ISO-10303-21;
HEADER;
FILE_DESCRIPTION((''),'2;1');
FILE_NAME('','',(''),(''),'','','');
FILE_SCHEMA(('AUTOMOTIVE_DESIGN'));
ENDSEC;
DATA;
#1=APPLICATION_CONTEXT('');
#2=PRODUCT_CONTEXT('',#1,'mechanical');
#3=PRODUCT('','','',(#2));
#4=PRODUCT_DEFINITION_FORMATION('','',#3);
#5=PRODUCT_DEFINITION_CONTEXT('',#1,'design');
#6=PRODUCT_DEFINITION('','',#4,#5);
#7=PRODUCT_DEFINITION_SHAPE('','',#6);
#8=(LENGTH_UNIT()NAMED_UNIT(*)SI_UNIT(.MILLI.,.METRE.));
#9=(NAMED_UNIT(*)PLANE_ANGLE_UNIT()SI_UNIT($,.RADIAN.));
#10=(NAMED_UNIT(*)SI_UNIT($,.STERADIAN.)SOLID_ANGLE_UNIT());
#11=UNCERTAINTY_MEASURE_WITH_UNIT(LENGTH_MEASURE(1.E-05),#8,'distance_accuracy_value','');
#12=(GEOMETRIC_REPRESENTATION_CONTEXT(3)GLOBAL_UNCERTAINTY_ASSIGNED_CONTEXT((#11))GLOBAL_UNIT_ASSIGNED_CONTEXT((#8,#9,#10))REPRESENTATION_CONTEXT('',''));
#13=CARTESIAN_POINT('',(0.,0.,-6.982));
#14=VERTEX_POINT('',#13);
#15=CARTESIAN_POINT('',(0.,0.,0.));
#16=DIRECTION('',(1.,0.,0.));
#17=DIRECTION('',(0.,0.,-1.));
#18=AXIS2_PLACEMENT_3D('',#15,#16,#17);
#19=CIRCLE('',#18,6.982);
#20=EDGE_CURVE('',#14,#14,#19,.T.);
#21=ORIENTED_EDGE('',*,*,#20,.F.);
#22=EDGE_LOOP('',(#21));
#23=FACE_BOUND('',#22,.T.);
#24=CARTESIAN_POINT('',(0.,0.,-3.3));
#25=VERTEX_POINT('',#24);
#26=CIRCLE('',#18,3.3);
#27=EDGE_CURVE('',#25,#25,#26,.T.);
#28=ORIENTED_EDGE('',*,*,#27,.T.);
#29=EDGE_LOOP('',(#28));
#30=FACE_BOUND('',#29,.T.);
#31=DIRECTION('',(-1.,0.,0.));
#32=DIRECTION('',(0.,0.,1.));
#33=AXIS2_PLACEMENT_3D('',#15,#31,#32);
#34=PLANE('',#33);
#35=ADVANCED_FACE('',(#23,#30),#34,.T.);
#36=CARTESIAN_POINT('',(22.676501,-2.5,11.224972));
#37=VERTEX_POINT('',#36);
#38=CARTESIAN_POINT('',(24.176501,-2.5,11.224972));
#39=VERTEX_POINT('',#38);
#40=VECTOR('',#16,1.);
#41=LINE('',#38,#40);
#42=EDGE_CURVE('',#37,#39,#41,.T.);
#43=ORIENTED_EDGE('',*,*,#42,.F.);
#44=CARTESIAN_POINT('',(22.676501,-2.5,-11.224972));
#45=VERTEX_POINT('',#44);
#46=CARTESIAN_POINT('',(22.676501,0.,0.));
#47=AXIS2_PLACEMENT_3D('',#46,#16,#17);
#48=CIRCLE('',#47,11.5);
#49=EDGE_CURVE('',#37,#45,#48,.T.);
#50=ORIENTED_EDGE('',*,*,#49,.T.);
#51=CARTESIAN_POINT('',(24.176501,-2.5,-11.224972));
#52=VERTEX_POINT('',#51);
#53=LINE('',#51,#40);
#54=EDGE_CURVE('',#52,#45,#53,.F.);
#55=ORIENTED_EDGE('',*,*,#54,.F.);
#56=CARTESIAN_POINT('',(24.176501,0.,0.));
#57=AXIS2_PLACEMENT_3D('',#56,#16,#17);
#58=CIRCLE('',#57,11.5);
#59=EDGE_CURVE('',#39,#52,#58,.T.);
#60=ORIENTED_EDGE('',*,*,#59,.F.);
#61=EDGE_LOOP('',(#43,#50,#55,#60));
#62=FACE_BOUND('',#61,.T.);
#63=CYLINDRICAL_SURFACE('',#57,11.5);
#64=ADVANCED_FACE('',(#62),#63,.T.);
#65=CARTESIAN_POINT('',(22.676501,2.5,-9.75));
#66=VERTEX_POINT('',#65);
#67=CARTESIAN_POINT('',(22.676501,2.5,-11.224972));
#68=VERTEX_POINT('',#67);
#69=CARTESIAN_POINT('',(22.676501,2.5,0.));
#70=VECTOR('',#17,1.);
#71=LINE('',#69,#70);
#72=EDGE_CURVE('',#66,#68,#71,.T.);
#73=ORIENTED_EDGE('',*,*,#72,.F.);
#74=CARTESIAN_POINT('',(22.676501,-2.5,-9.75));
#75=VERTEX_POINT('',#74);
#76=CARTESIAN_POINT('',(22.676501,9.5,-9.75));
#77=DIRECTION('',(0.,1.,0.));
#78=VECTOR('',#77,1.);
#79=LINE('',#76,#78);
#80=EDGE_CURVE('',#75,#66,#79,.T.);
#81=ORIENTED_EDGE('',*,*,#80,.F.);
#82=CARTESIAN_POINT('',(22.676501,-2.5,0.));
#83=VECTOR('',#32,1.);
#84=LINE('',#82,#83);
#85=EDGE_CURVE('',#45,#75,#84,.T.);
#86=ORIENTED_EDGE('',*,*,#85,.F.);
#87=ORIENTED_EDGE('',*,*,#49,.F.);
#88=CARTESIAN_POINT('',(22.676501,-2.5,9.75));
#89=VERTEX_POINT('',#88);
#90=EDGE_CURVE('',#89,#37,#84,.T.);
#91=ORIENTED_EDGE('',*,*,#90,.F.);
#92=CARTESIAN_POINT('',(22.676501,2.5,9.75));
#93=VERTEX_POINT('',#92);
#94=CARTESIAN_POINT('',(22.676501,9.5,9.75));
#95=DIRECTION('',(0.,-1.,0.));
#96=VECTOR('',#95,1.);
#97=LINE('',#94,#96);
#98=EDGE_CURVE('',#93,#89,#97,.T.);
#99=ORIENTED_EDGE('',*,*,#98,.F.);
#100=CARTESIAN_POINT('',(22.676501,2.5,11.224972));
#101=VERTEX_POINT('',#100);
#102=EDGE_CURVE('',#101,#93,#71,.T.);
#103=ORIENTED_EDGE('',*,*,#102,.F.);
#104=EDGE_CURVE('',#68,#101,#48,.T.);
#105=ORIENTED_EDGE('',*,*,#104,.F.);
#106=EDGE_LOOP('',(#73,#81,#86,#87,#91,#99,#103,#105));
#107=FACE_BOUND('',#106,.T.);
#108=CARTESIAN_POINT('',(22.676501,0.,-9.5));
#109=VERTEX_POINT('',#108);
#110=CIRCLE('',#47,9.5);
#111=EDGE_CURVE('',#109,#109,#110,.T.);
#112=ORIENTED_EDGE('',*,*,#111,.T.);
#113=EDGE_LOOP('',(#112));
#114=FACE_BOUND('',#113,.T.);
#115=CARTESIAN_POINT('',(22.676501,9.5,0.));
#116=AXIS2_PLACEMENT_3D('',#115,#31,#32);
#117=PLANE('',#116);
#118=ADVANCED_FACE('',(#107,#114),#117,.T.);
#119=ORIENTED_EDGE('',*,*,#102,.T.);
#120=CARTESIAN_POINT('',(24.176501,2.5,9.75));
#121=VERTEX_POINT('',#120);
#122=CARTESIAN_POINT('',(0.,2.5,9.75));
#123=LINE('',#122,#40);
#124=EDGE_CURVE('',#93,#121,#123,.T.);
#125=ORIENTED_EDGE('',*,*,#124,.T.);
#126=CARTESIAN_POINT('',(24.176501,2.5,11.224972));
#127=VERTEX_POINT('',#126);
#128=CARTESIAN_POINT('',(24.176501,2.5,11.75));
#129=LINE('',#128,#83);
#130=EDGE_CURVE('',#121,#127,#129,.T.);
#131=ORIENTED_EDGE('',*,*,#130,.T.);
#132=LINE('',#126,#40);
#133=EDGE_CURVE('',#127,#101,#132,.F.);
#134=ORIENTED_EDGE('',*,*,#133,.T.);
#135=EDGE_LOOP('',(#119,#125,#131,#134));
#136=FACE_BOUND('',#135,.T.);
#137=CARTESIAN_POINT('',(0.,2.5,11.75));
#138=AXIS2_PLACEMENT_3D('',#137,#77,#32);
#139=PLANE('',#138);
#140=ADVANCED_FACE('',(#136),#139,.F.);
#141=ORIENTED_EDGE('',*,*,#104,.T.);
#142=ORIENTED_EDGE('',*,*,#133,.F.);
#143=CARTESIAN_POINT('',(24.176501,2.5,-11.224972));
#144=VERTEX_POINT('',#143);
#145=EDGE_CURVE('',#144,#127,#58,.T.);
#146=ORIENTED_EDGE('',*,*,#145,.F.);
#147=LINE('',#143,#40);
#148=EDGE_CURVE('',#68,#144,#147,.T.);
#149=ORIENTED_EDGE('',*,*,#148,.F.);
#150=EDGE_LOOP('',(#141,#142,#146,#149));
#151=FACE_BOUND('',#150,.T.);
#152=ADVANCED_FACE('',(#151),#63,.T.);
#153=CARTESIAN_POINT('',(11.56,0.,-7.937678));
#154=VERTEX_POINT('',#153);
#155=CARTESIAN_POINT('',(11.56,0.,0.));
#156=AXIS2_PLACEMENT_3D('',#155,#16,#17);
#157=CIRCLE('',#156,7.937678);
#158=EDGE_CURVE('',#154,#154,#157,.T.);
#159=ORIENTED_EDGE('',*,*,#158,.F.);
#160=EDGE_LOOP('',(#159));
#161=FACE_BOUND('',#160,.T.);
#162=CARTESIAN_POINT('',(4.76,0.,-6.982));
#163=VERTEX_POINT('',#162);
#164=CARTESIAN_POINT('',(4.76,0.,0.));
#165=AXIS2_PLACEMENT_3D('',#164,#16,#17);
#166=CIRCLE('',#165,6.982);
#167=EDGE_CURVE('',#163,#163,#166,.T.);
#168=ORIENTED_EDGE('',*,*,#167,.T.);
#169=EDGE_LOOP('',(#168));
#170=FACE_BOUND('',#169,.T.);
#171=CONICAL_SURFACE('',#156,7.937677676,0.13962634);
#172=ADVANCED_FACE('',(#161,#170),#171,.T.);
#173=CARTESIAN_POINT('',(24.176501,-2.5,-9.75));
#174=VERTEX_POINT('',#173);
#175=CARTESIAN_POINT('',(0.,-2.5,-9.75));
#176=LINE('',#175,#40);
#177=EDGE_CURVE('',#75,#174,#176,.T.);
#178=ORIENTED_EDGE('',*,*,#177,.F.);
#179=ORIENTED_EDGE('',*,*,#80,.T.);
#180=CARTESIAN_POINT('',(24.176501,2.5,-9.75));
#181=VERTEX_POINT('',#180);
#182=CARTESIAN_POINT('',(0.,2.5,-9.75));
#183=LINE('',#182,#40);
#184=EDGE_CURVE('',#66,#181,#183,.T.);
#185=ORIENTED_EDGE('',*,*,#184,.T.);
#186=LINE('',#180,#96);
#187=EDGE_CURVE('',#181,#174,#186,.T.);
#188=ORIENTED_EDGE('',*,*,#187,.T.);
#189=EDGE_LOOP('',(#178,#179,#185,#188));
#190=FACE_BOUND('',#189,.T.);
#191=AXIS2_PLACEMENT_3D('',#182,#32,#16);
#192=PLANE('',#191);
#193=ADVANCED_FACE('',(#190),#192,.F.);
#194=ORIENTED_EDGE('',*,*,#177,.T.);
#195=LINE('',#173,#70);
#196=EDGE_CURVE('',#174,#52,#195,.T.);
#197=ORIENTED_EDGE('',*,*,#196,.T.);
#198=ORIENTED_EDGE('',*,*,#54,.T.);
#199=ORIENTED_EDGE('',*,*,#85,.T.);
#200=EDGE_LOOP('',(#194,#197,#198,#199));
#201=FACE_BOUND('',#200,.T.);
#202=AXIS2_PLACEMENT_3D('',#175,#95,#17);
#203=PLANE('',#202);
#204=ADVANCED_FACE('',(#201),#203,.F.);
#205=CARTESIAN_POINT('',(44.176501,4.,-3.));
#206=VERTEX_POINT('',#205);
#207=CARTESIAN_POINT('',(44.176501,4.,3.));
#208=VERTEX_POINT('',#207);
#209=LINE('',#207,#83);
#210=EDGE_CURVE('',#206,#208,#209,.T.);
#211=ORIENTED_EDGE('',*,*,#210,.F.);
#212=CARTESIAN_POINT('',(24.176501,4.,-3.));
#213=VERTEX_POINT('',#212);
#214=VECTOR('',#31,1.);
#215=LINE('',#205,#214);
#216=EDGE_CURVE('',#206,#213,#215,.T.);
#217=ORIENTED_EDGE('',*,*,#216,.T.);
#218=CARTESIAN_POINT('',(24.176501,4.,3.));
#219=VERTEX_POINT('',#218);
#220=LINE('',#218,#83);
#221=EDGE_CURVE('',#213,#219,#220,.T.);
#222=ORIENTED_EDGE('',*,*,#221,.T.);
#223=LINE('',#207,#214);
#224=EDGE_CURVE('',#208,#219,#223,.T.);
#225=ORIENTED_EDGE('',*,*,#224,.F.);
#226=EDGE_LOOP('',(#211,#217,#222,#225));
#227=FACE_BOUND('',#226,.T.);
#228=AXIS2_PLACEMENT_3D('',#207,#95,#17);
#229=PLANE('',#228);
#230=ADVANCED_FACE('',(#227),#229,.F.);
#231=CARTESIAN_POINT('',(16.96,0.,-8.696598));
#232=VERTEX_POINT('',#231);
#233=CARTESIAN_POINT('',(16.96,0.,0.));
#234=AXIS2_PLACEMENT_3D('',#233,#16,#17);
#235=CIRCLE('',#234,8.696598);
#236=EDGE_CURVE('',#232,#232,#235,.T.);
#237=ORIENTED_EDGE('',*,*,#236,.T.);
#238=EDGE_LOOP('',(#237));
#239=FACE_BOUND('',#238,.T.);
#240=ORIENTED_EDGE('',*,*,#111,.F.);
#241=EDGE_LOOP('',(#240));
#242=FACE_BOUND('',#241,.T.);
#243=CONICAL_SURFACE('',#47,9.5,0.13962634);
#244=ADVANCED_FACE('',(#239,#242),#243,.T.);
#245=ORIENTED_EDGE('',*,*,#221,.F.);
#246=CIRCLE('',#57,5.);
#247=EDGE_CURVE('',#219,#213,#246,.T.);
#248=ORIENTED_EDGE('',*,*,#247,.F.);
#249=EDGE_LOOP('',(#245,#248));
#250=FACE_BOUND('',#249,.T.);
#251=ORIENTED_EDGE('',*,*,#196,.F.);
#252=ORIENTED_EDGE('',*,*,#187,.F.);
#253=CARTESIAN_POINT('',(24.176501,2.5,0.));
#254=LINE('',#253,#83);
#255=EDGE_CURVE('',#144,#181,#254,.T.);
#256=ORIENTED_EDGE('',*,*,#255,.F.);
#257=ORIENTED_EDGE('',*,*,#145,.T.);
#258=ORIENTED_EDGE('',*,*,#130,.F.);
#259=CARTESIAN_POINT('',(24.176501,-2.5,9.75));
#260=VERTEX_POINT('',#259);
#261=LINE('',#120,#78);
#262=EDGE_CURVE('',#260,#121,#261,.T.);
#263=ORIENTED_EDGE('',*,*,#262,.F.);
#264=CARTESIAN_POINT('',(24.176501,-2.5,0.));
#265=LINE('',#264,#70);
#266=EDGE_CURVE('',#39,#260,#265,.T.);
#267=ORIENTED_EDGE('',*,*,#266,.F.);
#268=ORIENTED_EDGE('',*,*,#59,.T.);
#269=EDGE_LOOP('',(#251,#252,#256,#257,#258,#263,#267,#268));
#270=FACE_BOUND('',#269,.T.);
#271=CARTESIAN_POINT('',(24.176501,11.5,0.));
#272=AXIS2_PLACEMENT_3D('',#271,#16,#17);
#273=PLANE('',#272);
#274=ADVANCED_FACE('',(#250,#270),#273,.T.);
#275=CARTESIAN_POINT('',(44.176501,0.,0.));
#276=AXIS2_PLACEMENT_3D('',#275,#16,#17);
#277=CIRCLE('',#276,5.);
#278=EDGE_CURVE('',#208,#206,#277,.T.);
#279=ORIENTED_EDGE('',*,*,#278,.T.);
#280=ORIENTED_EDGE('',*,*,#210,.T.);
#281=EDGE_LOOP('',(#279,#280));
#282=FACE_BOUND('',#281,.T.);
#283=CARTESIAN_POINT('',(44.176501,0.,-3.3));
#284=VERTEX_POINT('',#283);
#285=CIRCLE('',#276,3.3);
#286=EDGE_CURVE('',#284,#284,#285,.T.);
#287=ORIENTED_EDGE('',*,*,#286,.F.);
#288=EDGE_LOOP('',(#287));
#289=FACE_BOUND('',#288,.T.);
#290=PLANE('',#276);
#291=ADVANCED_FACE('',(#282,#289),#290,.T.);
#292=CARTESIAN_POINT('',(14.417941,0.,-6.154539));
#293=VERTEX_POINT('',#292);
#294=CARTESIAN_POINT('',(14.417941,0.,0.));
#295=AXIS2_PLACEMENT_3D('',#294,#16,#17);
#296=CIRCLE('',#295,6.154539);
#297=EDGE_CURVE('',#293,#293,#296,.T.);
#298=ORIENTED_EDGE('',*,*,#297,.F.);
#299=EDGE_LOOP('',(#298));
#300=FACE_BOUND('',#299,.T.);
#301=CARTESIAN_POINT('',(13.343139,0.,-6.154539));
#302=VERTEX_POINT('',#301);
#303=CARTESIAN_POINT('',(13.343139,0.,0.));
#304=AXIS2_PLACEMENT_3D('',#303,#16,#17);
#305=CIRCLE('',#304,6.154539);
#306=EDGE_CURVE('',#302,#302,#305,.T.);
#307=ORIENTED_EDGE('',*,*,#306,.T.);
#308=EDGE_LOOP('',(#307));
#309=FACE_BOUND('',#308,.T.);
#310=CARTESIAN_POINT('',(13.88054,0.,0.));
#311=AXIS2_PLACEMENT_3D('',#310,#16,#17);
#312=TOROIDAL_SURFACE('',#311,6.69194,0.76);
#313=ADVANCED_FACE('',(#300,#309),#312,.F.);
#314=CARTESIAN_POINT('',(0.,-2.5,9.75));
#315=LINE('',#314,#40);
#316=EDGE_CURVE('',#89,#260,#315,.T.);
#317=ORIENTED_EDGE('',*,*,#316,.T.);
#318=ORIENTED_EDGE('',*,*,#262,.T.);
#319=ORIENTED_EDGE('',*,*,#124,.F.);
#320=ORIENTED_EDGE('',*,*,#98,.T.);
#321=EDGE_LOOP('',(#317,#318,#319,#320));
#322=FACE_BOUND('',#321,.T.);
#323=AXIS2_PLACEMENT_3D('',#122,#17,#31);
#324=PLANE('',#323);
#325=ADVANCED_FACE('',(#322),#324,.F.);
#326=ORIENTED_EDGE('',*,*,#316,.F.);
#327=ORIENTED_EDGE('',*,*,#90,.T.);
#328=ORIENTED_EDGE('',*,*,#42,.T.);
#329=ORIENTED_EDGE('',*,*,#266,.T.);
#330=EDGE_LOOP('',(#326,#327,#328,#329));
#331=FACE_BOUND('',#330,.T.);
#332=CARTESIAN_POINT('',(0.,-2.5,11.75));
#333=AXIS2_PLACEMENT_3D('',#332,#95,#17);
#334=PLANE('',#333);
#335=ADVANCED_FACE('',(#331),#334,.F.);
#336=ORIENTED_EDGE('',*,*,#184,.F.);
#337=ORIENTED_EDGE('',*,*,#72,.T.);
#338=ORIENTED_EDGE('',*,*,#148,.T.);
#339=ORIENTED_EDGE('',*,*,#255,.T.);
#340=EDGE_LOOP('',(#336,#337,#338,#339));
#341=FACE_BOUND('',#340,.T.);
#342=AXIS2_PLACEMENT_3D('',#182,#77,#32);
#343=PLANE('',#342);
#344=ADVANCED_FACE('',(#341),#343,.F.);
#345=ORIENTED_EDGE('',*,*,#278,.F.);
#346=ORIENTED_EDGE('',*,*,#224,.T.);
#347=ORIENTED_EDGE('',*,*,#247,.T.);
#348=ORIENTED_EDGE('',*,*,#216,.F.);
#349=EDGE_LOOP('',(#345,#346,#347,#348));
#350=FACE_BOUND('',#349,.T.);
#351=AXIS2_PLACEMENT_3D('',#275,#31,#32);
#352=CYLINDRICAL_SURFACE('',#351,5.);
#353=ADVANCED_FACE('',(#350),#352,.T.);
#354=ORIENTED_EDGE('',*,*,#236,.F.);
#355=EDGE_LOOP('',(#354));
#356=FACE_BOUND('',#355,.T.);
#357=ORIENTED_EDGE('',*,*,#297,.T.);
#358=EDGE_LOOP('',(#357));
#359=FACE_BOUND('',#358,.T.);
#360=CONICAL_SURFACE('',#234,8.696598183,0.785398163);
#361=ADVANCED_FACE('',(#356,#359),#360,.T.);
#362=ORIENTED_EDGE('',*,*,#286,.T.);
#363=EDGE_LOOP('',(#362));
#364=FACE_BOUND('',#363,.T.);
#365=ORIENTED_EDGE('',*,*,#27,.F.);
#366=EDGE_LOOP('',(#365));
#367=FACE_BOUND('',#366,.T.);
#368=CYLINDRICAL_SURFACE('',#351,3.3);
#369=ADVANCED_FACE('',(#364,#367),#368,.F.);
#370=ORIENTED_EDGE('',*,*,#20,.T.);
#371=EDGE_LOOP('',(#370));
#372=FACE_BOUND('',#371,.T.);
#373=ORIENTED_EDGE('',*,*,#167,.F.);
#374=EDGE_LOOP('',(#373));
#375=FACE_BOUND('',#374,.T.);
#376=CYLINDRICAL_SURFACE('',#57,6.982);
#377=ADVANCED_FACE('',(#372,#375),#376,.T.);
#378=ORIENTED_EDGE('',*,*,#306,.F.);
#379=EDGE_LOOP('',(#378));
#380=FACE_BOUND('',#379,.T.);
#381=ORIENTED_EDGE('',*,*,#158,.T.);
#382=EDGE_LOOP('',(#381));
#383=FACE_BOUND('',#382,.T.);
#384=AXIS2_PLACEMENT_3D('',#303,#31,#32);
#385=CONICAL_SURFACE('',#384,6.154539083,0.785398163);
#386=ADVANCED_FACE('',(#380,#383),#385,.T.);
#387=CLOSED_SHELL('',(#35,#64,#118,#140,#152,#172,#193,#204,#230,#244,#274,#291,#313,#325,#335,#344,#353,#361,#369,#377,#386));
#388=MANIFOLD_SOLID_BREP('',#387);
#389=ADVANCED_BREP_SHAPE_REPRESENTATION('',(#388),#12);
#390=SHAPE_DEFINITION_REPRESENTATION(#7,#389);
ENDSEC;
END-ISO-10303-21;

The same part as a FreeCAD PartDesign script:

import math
import FreeCAD as App
import Part
import Sketcher

V = App.Vector
Q = App.Units.Quantity


def add_polygon(sketch, points):
    """Adds a closed chain of lines whose ends are joined by coincident constraints."""
    first, n = sketch.GeometryCount, len(points)
    for a, b in zip(points, points[1:] + points[:1]):
        sketch.addGeometry(Part.LineSegment(App.Vector(*a, 0), App.Vector(*b, 0)), False)
    for i in range(n):
        sketch.addConstraint(Sketcher.Constraint("Coincident", first + i, 2, first + (i + 1) % n, 1))

doc = App.newDocument("Part")
body = doc.addObject("PartDesign::Body", "Body")

# Sketch on XY plane
sketch1 = body.newObject("Sketcher::SketchObject", "Sketch")
sketch1.AttachmentSupport = (doc.getObject("XY_Plane"), [""])
sketch1.MapMode = "FlatFace"
sketch1.addGeometry(Part.LineSegment(V(0, 7, 0), V(0, 0, 0)), False)
sketch1.addGeometry(Part.LineSegment(V(0, 0, 0), V(24.2, 0, 0)), False)
sketch1.addGeometry(Part.LineSegment(V(24.2, 0, 0), V(24.2, 11.5, 0)), False)
sketch1.addGeometry(Part.LineSegment(V(24.2, 11.5, 0), V(22.7, 11.5, 0)), False)
sketch1.addGeometry(Part.LineSegment(V(22.7, 11.5, 0), V(22.7, 9.5, 0)), False)
sketch1.addGeometry(Part.LineSegment(V(22.7, 9.5, 0), V(17, 8.7, 0)), False)
sketch1.addGeometry(Part.LineSegment(V(17, 8.7, 0), V(14.4, 6.2, 0)), False)
sketch1.addGeometry(Part.ArcOfCircle(Part.Circle(V(13.9, 6.7, 0), V(0, 0, 1), 0.8), math.radians(-135), math.radians(-45)), False)
sketch1.addGeometry(Part.LineSegment(V(13.3, 6.2, 0), V(11.6, 7.9, 0)), False)
sketch1.addGeometry(Part.LineSegment(V(11.6, 7.9, 0), V(4.8, 7, 0)), False)
sketch1.addGeometry(Part.LineSegment(V(4.8, 7, 0), V(0, 7, 0)), False)
sketch1.addConstraint(Sketcher.Constraint("Coincident", 0, 2, 1, 1))
sketch1.addConstraint(Sketcher.Constraint("Coincident", 1, 2, 2, 1))
sketch1.addConstraint(Sketcher.Constraint("Coincident", 2, 2, 3, 1))
sketch1.addConstraint(Sketcher.Constraint("Coincident", 3, 2, 4, 1))
sketch1.addConstraint(Sketcher.Constraint("Coincident", 4, 2, 5, 1))
sketch1.addConstraint(Sketcher.Constraint("Coincident", 5, 2, 6, 1))
sketch1.addConstraint(Sketcher.Constraint("Tangent", 6, 2, 7, 2))
sketch1.addConstraint(Sketcher.Constraint("Tangent", 7, 1, 8, 1))
sketch1.addConstraint(Sketcher.Constraint("Coincident", 8, 2, 9, 1))
sketch1.addConstraint(Sketcher.Constraint("Coincident", 9, 2, 10, 1))
sketch1.addConstraint(Sketcher.Constraint("Coincident", 10, 2, 0, 1))
sketch1.addConstraint(Sketcher.Constraint("Vertical", 0))
sketch1.addConstraint(Sketcher.Constraint("Horizontal", 1))
sketch1.addConstraint(Sketcher.Constraint("Vertical", 2))
sketch1.addConstraint(Sketcher.Constraint("Horizontal", 3))
sketch1.addConstraint(Sketcher.Constraint("Vertical", 4))
sketch1.addConstraint(Sketcher.Constraint("Horizontal", 10))
sketch1.addConstraint(Sketcher.Constraint("Coincident", 0, 2, -1, 1))
sketch1.addConstraint(Sketcher.Constraint("Perpendicular", 6, 8))
sketch1.addConstraint(Sketcher.Constraint("Parallel", 5, 9))
sketch1.addConstraint(Sketcher.Constraint("Horizontal", 6, 2, 7, 1))
sketch1.addConstraint(Sketcher.Constraint("DistanceY", 4, 2, 4, 1, 2.0))
sketch1.addConstraint(Sketcher.Constraint("Angle", 5, Q("-172 deg")))
sketch1.addConstraint(Sketcher.Constraint("Radius", 7, 0.76))
sketch1.addConstraint(Sketcher.Constraint("DistanceX", 3, 2, 3, 1, 1.5))
sketch1.addConstraint(Sketcher.Constraint("DistanceY", 2, 1, 2, 2, 11.5))
sketch1.addConstraint(Sketcher.Constraint("DistanceX", 10, 2, 10, 1, 4.76))
sketch1.addConstraint(Sketcher.Constraint("DistanceX", 8, 2, 5, 2, 5.4))
sketch1.addConstraint(Sketcher.Constraint("DistanceX", 9, 2, 8, 2, 6.8))
sketch1.addConstraint(Sketcher.Constraint("DistanceY", 0, 2, 0, 1, 6.982))
sketch1.addConstraint(Sketcher.Constraint("DistanceX", 1, 1, 1, 2, 24.176501))
revolution = body.newObject("PartDesign::Revolution", "Revolution")
revolution.Profile = sketch1
revolution.ReferenceAxis = (sketch1, ["H_Axis"])
revolution.Angle = 360

# Sketch on YZ plane
sketch2 = body.newObject("Sketcher::SketchObject", "Sketch001")
sketch2.AttachmentSupport = (doc.getObject("YZ_Plane"), [""])
sketch2.MapMode = "FlatFace"
sketch2.AttachmentOffset = App.Placement(V(0, 0, 24.176501), App.Rotation())
add_polygon(sketch2, [(2.5, 11.8), (-2.5, 11.8), (-2.5, 9.8), (2.5, 9.8)])  # lines 0-3
add_polygon(sketch2, [(2.5, -9.8), (-2.5, -9.8), (-2.5, -11.8), (2.5, -11.8)])  # lines 4-7
sketch2.addConstraint(Sketcher.Constraint("Horizontal", 0))
sketch2.addConstraint(Sketcher.Constraint("Vertical", 1))
sketch2.addConstraint(Sketcher.Constraint("Horizontal", 2))
sketch2.addConstraint(Sketcher.Constraint("Vertical", 3))
sketch2.addConstraint(Sketcher.Constraint("Horizontal", 4))
sketch2.addConstraint(Sketcher.Constraint("Vertical", 5))
sketch2.addConstraint(Sketcher.Constraint("Horizontal", 6))
sketch2.addConstraint(Sketcher.Constraint("Vertical", 7))
sketch2.addConstraint(Sketcher.Constraint("Symmetric", 2, 2, 4, 2, -1, 1))
sketch2.addConstraint(Sketcher.Constraint("Symmetric", 0, 2, 6, 2, -1, 1))
sketch2.addConstraint(Sketcher.Constraint("Vertical", 1, 2, 4, 2))
sketch2.addConstraint(Sketcher.Constraint("DistanceX", 0, 2, 0, 1, 5.0))
sketch2.addConstraint(Sketcher.Constraint("DistanceY", 1, 2, 1, 1, 2.0))
sketch2.addConstraint(Sketcher.Constraint("DistanceY", 4, 2, 1, 2, 19.5))
pocket1 = body.newObject("PartDesign::Pocket", "Pocket")
pocket1.Profile = sketch2
pocket1.Type = "ThroughAll"

# Sketch on YZ plane
sketch3 = body.newObject("Sketcher::SketchObject", "Sketch002")
sketch3.AttachmentSupport = (doc.getObject("YZ_Plane"), [""])
sketch3.MapMode = "FlatFace"
sketch3.AttachmentOffset = App.Placement(V(0, 0, 24.176501), App.Rotation())
sketch3.addGeometry(Part.LineSegment(V(4, -3, 0), V(4, 3, 0)), False)
sketch3.addGeometry(Part.ArcOfCircle(Part.Circle(V(0, 0, 0), V(0, 0, 1), 5), math.radians(37), math.radians(323)), False)
sketch3.addConstraint(Sketcher.Constraint("Coincident", 0, 1, 1, 2))
sketch3.addConstraint(Sketcher.Constraint("Coincident", 1, 1, 0, 2))
sketch3.addConstraint(Sketcher.Constraint("Vertical", 0))
sketch3.addConstraint(Sketcher.Constraint("Coincident", 1, 3, -1, 1))
sketch3.addConstraint(Sketcher.Constraint("Radius", 1, 5.0))
sketch3.addConstraint(Sketcher.Constraint("DistanceY", 0, 1, 0, 2, 6.0))
pad1 = body.newObject("PartDesign::Pad", "Pad")
pad1.Profile = sketch3
pad1.Length = 20

# Sketch on YZ plane
sketch4 = body.newObject("Sketcher::SketchObject", "Sketch003")
sketch4.AttachmentSupport = (doc.getObject("YZ_Plane"), [""])
sketch4.MapMode = "FlatFace"
sketch4.addGeometry(Part.Circle(V(0, 0, 0), V(0, 0, 1), 3.3), False)
sketch4.addConstraint(Sketcher.Constraint("Coincident", 0, 3, -1, 1))
sketch4.addConstraint(Sketcher.Constraint("Diameter", 0, 6.6))
pocket2 = body.newObject("PartDesign::Pocket", "Pocket001")
pocket2.Profile = sketch4
pocket2.Type = "ThroughAll"
pocket2.Reversed = True

doc.recompute()
